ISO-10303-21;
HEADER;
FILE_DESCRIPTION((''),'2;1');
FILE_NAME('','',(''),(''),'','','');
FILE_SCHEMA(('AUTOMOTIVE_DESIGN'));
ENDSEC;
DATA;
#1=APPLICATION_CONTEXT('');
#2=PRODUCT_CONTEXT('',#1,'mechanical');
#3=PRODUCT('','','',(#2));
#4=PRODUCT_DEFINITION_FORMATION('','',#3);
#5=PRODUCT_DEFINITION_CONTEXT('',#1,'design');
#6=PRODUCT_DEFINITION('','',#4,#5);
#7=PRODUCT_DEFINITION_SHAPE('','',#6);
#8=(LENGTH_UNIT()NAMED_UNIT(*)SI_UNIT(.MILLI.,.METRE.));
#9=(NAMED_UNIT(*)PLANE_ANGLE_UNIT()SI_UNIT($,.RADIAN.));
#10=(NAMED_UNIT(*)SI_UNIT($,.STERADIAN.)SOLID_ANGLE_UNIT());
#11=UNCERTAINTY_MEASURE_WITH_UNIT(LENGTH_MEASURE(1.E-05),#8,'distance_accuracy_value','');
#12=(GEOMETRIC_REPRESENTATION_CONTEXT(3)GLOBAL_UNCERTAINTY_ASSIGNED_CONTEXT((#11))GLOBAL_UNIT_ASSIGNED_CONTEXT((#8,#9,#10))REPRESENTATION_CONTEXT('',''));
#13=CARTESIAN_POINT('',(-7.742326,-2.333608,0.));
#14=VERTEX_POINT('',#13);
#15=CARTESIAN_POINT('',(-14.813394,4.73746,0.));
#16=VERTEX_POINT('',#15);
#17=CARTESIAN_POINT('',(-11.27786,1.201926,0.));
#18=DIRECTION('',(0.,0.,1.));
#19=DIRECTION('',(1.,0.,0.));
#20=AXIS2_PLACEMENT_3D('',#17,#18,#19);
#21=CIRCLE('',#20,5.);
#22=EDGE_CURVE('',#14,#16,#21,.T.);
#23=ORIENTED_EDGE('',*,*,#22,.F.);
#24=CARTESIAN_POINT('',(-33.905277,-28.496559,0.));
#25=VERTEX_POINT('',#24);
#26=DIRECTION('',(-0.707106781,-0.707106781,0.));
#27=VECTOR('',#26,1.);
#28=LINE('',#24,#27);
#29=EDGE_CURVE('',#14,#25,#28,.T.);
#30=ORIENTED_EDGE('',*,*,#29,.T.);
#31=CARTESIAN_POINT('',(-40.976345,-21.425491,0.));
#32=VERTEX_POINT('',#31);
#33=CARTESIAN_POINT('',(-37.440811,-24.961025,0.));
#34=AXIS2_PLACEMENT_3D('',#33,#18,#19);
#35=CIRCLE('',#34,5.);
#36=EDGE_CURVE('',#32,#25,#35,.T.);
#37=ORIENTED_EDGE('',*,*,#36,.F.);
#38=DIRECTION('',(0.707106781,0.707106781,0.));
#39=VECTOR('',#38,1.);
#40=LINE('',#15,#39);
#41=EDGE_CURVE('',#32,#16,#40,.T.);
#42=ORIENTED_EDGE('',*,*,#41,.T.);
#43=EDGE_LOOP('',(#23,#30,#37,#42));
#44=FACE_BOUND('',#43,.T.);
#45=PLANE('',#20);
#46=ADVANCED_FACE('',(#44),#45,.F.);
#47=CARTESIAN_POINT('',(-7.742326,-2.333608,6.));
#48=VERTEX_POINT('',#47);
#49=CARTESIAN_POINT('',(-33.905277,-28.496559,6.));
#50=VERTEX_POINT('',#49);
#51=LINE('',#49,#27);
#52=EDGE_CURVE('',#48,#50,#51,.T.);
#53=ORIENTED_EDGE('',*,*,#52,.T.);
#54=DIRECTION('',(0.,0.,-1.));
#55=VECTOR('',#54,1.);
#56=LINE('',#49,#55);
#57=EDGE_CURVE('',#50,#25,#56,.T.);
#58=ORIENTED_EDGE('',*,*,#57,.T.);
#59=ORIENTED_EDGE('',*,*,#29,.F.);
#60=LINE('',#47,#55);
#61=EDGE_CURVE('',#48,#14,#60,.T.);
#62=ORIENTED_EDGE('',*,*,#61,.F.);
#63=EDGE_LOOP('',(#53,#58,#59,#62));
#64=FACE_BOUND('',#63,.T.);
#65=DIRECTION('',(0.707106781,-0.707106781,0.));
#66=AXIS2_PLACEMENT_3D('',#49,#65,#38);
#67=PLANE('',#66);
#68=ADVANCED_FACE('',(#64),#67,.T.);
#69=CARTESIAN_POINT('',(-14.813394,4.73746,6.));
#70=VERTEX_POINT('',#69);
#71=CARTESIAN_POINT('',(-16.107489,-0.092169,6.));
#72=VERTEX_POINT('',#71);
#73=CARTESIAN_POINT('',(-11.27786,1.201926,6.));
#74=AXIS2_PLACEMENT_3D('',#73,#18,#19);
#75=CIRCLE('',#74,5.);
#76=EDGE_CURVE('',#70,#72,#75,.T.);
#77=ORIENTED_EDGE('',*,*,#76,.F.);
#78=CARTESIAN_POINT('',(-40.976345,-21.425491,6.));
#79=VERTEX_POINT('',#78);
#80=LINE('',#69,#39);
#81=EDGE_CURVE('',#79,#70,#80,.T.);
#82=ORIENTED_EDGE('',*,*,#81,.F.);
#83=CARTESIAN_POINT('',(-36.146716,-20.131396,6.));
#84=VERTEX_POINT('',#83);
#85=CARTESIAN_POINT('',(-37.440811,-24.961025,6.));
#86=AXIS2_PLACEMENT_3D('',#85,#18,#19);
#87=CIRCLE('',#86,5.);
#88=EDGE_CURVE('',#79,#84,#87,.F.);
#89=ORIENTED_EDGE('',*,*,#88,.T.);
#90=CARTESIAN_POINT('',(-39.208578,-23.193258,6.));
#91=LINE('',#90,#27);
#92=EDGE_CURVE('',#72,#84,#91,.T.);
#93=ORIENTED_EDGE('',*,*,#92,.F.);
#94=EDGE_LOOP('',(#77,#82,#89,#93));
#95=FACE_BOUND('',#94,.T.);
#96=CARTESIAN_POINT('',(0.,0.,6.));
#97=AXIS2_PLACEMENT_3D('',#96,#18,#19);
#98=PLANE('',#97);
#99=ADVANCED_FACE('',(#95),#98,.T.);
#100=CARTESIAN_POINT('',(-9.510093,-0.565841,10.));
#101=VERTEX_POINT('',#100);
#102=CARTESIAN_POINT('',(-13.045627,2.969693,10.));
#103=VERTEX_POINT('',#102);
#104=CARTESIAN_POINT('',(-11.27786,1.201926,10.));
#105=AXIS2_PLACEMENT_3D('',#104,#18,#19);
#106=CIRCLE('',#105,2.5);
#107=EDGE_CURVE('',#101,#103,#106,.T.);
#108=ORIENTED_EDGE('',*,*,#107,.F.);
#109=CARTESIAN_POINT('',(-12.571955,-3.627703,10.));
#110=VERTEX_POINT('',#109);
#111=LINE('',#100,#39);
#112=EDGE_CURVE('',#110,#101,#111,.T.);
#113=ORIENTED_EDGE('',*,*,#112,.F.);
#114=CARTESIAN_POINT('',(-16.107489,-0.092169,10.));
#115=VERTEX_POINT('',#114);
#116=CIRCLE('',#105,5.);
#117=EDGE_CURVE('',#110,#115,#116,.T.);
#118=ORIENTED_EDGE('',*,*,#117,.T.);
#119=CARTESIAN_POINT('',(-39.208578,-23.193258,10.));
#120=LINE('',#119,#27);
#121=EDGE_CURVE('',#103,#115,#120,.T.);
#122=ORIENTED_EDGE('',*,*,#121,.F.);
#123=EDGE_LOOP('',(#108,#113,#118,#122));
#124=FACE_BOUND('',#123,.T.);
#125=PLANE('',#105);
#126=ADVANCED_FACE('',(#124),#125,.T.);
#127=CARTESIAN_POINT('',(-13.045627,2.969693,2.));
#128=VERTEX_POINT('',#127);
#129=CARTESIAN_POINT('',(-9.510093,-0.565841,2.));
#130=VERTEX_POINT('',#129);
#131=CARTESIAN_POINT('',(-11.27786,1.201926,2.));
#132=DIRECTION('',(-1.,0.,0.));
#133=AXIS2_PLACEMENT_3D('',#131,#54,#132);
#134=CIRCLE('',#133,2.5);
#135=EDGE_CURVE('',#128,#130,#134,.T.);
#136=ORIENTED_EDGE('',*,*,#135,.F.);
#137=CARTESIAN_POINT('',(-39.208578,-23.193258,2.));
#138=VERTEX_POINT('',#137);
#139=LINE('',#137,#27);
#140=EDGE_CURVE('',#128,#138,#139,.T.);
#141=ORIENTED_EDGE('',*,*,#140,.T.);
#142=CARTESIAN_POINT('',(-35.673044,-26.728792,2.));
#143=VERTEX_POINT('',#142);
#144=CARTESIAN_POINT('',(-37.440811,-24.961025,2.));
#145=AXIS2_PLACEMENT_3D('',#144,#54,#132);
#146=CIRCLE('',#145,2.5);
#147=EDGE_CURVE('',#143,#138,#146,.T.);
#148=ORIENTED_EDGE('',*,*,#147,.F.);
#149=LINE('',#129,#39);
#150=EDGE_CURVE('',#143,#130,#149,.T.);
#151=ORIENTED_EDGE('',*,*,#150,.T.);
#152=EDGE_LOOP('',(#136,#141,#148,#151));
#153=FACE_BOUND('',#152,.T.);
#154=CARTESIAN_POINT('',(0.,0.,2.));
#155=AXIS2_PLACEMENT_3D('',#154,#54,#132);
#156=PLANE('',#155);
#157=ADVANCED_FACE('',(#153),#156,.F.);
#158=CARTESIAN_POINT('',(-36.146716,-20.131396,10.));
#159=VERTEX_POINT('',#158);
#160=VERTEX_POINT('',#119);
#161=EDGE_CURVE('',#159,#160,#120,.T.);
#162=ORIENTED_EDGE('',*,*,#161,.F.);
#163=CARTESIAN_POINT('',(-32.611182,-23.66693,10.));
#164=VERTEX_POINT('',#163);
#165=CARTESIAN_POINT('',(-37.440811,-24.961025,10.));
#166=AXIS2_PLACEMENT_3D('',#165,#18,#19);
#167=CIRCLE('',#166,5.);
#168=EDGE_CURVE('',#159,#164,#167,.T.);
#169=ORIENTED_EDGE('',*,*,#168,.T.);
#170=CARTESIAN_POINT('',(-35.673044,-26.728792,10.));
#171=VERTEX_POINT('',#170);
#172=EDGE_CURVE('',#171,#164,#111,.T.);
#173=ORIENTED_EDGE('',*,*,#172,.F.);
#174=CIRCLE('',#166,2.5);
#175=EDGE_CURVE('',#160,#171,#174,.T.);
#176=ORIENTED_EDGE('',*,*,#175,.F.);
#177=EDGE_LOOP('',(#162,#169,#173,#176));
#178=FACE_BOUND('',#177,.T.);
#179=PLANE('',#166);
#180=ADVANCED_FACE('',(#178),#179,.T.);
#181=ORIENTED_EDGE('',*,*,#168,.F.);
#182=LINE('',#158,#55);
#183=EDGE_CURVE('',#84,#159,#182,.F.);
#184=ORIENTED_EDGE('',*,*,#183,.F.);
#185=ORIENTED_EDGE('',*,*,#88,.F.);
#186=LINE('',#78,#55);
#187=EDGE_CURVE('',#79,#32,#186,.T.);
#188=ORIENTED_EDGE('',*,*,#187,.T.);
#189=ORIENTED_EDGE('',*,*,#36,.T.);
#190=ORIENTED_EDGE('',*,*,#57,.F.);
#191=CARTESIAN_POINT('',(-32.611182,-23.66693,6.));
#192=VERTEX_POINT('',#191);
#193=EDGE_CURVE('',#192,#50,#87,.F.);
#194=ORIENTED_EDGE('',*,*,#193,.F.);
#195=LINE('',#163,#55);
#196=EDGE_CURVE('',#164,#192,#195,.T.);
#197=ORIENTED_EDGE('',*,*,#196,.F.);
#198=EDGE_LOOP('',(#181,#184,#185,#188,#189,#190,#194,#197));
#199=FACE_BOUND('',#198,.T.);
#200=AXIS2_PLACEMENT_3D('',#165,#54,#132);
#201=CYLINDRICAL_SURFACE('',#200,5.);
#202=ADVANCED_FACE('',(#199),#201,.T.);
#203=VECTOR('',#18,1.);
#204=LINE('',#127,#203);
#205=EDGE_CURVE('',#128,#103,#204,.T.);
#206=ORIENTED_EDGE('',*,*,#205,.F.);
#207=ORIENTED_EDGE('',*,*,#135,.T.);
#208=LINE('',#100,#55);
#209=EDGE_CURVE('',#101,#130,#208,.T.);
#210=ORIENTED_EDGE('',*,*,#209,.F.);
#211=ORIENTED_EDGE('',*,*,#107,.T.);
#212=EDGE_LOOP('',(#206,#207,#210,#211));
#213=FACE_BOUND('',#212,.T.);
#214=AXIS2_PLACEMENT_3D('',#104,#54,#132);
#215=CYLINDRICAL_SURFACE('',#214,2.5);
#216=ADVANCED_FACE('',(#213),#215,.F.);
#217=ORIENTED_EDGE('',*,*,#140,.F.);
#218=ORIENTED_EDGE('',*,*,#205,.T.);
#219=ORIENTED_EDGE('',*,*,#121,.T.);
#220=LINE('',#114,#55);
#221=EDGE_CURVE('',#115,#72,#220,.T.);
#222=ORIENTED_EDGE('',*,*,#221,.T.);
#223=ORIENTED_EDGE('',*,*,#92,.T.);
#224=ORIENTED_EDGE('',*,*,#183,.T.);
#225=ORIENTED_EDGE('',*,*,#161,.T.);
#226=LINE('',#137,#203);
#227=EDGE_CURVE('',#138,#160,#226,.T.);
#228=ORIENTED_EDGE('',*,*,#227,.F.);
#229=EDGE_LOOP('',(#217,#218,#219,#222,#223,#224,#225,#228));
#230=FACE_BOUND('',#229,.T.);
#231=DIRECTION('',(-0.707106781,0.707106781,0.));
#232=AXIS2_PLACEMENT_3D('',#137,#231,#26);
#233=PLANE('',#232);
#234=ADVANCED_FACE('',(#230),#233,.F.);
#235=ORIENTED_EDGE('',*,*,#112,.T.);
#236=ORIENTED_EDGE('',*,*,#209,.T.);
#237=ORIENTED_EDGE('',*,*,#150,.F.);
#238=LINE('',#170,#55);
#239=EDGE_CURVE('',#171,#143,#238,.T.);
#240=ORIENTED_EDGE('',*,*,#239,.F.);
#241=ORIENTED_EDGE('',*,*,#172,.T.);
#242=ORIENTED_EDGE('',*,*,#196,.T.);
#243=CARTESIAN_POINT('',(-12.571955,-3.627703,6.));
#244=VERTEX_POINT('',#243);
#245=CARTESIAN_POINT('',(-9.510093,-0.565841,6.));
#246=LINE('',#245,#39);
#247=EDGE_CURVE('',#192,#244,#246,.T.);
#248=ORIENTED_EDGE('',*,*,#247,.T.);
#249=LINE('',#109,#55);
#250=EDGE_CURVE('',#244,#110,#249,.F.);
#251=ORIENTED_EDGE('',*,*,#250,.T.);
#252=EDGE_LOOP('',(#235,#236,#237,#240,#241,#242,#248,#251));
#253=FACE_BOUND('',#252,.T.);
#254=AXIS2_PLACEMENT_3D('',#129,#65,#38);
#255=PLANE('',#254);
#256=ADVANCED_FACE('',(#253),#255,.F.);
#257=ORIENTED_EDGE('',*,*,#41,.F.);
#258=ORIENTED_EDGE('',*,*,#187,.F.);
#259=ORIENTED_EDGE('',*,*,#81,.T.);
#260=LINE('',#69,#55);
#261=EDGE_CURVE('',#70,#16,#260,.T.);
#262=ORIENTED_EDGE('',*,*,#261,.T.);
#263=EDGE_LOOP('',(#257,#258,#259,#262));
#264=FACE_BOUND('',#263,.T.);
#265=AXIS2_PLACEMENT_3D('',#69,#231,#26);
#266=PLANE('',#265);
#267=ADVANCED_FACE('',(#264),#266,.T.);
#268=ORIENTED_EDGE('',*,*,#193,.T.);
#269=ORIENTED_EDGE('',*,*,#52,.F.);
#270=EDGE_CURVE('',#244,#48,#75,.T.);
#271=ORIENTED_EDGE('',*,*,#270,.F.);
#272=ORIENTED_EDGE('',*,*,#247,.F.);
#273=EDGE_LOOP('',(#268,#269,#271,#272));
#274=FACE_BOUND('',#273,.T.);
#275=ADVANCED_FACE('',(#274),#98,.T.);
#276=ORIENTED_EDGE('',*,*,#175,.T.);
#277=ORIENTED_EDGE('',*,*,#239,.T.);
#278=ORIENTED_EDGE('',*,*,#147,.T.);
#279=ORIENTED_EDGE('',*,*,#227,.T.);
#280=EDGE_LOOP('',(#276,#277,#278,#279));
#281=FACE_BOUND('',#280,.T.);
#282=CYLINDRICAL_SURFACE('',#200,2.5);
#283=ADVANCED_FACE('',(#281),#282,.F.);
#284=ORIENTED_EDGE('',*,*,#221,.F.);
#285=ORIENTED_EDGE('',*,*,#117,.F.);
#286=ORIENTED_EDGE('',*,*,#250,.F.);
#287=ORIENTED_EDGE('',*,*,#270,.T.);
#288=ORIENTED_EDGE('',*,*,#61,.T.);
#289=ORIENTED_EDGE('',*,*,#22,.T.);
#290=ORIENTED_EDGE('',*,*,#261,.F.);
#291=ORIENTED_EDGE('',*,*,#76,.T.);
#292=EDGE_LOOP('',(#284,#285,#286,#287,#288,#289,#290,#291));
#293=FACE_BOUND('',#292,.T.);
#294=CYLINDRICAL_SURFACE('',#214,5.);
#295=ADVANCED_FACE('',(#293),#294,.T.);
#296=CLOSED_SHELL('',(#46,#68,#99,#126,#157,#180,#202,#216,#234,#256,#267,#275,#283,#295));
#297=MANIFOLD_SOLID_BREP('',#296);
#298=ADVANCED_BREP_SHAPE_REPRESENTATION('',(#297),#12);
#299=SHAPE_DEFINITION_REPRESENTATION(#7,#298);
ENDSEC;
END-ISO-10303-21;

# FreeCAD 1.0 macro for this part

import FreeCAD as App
import Part
import Sketcher

V = App.Vector
Q = App.Units.Quantity


def add_polygon(sketch, points):
    """Adds a closed chain of lines whose ends are joined by coincident constraints."""
    first, n = sketch.GeometryCount, len(points)
    for a, b in zip(points, points[1:] + points[:1]):
        sketch.addGeometry(Part.LineSegment(App.Vector(*a, 0), App.Vector(*b, 0)), False)
    for i in range(n):
        sketch.addConstraint(Sketcher.Constraint("Coincident", first + i, 2, first + (i + 1) % n, 1))

doc = App.newDocument("Part")
params = doc.addObject("Spreadsheet::Sheet", "Params")
for row, (alias, value) in enumerate([
    ("sketch1_diameter", "10 mm"),
    ("sketch1_diameter2", "5 mm"),
    ("pad1_length", "10 mm"),
    ("sketch2_diameter", "10 mm"),
    ("sketch2_diameter2", "5 mm"),
    ("pad2_length", "10 mm"),
    ("sketch3_length", "10 mm"),
    ("sketch3_length2", "37 mm"),
    ("pad3_length", "6 mm"),
    ("sketch4_length", "5 mm"),
    ("sketch4_length2", "37 mm"),
    ("pocket1_length", "4 mm"),
    ("sketch5_diameter", "5 mm"),
    ("pad4_length", "2 mm"),
    ("sketch6_length", "5 mm"),
    ("sketch6_length2", "37 mm"),
    ("pocket2_length", "4 mm"),
], start=1):
    params.set(f"A{row}", alias)
    params.set(f"B{row}", "=" + value)
    params.setAlias(f"B{row}", alias)

body = doc.addObject("PartDesign::Body", "Body")

sketch1 = body.newObject("Sketcher::SketchObject", "Sketch")
sketch1.AttachmentSupport = (doc.getObject("XY_Plane"), [""])
sketch1.MapMode = "FlatFace"
sketch1.addGeometry(Part.Circle(V(-11.27786, 1.201926, 0), V(0, 0, 1), 5), False)
sketch1.addGeometry(Part.Circle(V(-11.27786, 1.201926, 0), V(0, 0, 1), 2.5), False)
sketch1.addConstraint(Sketcher.Constraint("Coincident", 1, 3, 0, 3))
sketch1.addConstraint(Sketcher.Constraint("Diameter", 0, Q("10 mm")))
sketch1.addConstraint(Sketcher.Constraint("Diameter", 1, Q("5 mm")))
sketch1.addConstraint(Sketcher.Constraint("DistanceX", 0, 3, -1, 1, Q("11.27786 mm")))
sketch1.addConstraint(Sketcher.Constraint("DistanceY", -1, 1, 0, 3, Q("1.201926 mm")))
sketch1.setExpression("Constraints[1]", "Params.sketch1_diameter")
sketch1.setExpression("Constraints[2]", "Params.sketch1_diameter2")
pad1 = body.newObject("PartDesign::Pad", "Pad")
pad1.Profile = sketch1
pad1.setExpression("Length", "Params.pad1_length")
body2 = doc.addObject("PartDesign::Body", "Body001")

sketch2 = body2.newObject("Sketcher::SketchObject", "Sketch001")
sketch2.AttachmentSupport = (doc.getObject("XY_Plane001"), [""])
sketch2.MapMode = "FlatFace"
sketch2.addGeometry(Part.Circle(V(-37.440811, -24.961025, 0), V(0, 0, 1), 5), False)
sketch2.addGeometry(Part.Circle(V(-37.440811, -24.961025, 0), V(0, 0, 1), 2.5), False)
sketch2.addConstraint(Sketcher.Constraint("Coincident", 1, 3, 0, 3))
sketch2.addConstraint(Sketcher.Constraint("Diameter", 0, Q("10 mm")))
sketch2.addConstraint(Sketcher.Constraint("Diameter", 1, Q("5 mm")))
sketch2.addConstraint(Sketcher.Constraint("DistanceX", 0, 3, -1, 1, Q("37.440811 mm")))
sketch2.addConstraint(Sketcher.Constraint("DistanceY", 0, 3, -1, 1, Q("24.961025 mm")))
sketch2.setExpression("Constraints[1]", "Params.sketch2_diameter")
sketch2.setExpression("Constraints[2]", "Params.sketch2_diameter2")
pad2 = body2.newObject("PartDesign::Pad", "Pad001")
pad2.Profile = sketch2
pad2.setExpression("Length", "Params.pad2_length")
body.AllowCompound = True
doc.recompute()

boolean = body.newObject("PartDesign::Boolean", "Boolean")
boolean.Type = "Fuse"
boolean.addObjects([body2])

sketch3 = body.newObject("Sketcher::SketchObject", "Sketch002")
sketch3.AttachmentSupport = (doc.getObject("XY_Plane"), [""])
sketch3.MapMode = "FlatFace"
add_polygon(sketch3, [(-14.813394, 4.73746), (-7.742326, -2.333608), (-33.905277, -28.496559), (-40.976345, -21.425491)])
sketch3.addConstraint(Sketcher.Constraint("Perpendicular", 0, 1))
sketch3.addConstraint(Sketcher.Constraint("Perpendicular", 1, 2))
sketch3.addConstraint(Sketcher.Constraint("Perpendicular", 2, 3))
sketch3.addConstraint(Sketcher.Constraint("Angle", 0, Q("-45 deg")))
sketch3.addConstraint(Sketcher.Constraint("Distance", 0, Q("10 mm")))
sketch3.addConstraint(Sketcher.Constraint("Distance", 1, Q("37 mm")))
sketch3.addConstraint(Sketcher.Constraint("DistanceY", 0, 2, -1, 1, Q("2.333608 mm")))
sketch3.addConstraint(Sketcher.Constraint("DistanceX", 0, 2, -1, 1, Q("7.742326 mm")))
sketch3.setExpression("Constraints[8]", "Params.sketch3_length")
sketch3.setExpression("Constraints[9]", "Params.sketch3_length2")
pad3 = body.newObject("PartDesign::Pad", "Pad002")
pad3.Profile = sketch3
pad3.setExpression("Length", "Params.pad3_length")

sketch4 = body.newObject("Sketcher::SketchObject", "Sketch003")
sketch4.AttachmentSupport = (doc.getObject("XY_Plane"), [""])
sketch4.MapMode = "FlatFace"
sketch4.AttachmentOffset = App.Placement(V(0, 0, 6), App.Rotation())
add_polygon(sketch4, [(-9.510093, -0.565841), (-13.045627, 2.969693), (-39.208578, -23.193258), (-35.673044, -26.728792)])
sketch4.addConstraint(Sketcher.Constraint("Perpendicular", 0, 1))
sketch4.addConstraint(Sketcher.Constraint("Perpendicular", 1, 2))
sketch4.addConstraint(Sketcher.Constraint("Perpendicular", 2, 3))
sketch4.addConstraint(Sketcher.Constraint("Angle", 0, Q("135 deg")))
sketch4.addConstraint(Sketcher.Constraint("Distance", 0, Q("5 mm")))
sketch4.addConstraint(Sketcher.Constraint("Distance", 1, Q("37 mm")))
sketch4.addConstraint(Sketcher.Constraint("DistanceY", 1, 2, -1, 1, Q("23.193258 mm")))
sketch4.addConstraint(Sketcher.Constraint("DistanceX", 0, 2, -1, 1, Q("13.045627 mm")))
sketch4.setExpression("Constraints[8]", "Params.sketch4_length")
sketch4.setExpression("Constraints[9]", "Params.sketch4_length2")
pocket1 = body.newObject("PartDesign::Pocket", "Pocket")
pocket1.Profile = sketch4
pocket1.setExpression("Length", "Params.pocket1_length")

sketch5 = body.newObject("Sketcher::SketchObject", "Sketch004")
sketch5.AttachmentSupport = (doc.getObject("XY_Plane"), [""])
sketch5.MapMode = "FlatFace"
sketch5.addGeometry(Part.Circle(V(-11.27786, 1.201926, 0), V(0, 0, 1), 2.5), False)
sketch5.addGeometry(Part.Circle(V(-37.440811, -24.961025, 0), V(0, 0, 1), 2.5), False)
sketch5.addConstraint(Sketcher.Constraint("Equal", 0, 1))
sketch5.addConstraint(Sketcher.Constraint("Diameter", 0, Q("5 mm")))
sketch5.addConstraint(Sketcher.Constraint("DistanceX", 0, 3, -1, 1, Q("11.27786 mm")))
sketch5.addConstraint(Sketcher.Constraint("DistanceX", 1, 3, -1, 1, Q("37.440811 mm")))
sketch5.addConstraint(Sketcher.Constraint("DistanceY", 1, 3, 0, 3, Q("26.162951 mm")))
sketch5.addConstraint(Sketcher.Constraint("DistanceY", -1, 1, 0, 3, Q("1.201926 mm")))
sketch5.setExpression("Constraints[1]", "Params.sketch5_diameter")
pad4 = body.newObject("PartDesign::Pad", "Pad003")
pad4.Profile = sketch5
pad4.setExpression("Length", "Params.pad4_length")

sketch6 = body.newObject("Sketcher::SketchObject", "Sketch005")
sketch6.AttachmentSupport = (doc.getObject("XY_Plane"), [""])
sketch6.MapMode = "FlatFace"
sketch6.AttachmentOffset = App.Placement(V(0, 0, 6), App.Rotation())
add_polygon(sketch6, [(-9.510093, -0.565841), (-13.045627, 2.969693), (-39.208578, -23.193258), (-35.673044, -26.728792)])
sketch6.addConstraint(Sketcher.Constraint("Perpendicular", 0, 1))
sketch6.addConstraint(Sketcher.Constraint("Perpendicular", 1, 2))
sketch6.addConstraint(Sketcher.Constraint("Perpendicular", 2, 3))
sketch6.addConstraint(Sketcher.Constraint("Angle", 0, Q("135 deg")))
sketch6.addConstraint(Sketcher.Constraint("Distance", 0, Q("5 mm")))
sketch6.addConstraint(Sketcher.Constraint("Distance", 1, Q("37 mm")))
sketch6.addConstraint(Sketcher.Constraint("DistanceY", 1, 2, -1, 1, Q("23.193258 mm")))
sketch6.addConstraint(Sketcher.Constraint("DistanceX", 0, 2, -1, 1, Q("13.045627 mm")))
sketch6.setExpression("Constraints[8]", "Params.sketch6_length")
sketch6.setExpression("Constraints[9]", "Params.sketch6_length2")
pocket2 = body.newObject("PartDesign::Pocket", "Pocket001")
pocket2.Profile = sketch6
pocket2.setExpression("Length", "Params.pocket2_length")
pocket2.Reversed = True

doc.recompute()
